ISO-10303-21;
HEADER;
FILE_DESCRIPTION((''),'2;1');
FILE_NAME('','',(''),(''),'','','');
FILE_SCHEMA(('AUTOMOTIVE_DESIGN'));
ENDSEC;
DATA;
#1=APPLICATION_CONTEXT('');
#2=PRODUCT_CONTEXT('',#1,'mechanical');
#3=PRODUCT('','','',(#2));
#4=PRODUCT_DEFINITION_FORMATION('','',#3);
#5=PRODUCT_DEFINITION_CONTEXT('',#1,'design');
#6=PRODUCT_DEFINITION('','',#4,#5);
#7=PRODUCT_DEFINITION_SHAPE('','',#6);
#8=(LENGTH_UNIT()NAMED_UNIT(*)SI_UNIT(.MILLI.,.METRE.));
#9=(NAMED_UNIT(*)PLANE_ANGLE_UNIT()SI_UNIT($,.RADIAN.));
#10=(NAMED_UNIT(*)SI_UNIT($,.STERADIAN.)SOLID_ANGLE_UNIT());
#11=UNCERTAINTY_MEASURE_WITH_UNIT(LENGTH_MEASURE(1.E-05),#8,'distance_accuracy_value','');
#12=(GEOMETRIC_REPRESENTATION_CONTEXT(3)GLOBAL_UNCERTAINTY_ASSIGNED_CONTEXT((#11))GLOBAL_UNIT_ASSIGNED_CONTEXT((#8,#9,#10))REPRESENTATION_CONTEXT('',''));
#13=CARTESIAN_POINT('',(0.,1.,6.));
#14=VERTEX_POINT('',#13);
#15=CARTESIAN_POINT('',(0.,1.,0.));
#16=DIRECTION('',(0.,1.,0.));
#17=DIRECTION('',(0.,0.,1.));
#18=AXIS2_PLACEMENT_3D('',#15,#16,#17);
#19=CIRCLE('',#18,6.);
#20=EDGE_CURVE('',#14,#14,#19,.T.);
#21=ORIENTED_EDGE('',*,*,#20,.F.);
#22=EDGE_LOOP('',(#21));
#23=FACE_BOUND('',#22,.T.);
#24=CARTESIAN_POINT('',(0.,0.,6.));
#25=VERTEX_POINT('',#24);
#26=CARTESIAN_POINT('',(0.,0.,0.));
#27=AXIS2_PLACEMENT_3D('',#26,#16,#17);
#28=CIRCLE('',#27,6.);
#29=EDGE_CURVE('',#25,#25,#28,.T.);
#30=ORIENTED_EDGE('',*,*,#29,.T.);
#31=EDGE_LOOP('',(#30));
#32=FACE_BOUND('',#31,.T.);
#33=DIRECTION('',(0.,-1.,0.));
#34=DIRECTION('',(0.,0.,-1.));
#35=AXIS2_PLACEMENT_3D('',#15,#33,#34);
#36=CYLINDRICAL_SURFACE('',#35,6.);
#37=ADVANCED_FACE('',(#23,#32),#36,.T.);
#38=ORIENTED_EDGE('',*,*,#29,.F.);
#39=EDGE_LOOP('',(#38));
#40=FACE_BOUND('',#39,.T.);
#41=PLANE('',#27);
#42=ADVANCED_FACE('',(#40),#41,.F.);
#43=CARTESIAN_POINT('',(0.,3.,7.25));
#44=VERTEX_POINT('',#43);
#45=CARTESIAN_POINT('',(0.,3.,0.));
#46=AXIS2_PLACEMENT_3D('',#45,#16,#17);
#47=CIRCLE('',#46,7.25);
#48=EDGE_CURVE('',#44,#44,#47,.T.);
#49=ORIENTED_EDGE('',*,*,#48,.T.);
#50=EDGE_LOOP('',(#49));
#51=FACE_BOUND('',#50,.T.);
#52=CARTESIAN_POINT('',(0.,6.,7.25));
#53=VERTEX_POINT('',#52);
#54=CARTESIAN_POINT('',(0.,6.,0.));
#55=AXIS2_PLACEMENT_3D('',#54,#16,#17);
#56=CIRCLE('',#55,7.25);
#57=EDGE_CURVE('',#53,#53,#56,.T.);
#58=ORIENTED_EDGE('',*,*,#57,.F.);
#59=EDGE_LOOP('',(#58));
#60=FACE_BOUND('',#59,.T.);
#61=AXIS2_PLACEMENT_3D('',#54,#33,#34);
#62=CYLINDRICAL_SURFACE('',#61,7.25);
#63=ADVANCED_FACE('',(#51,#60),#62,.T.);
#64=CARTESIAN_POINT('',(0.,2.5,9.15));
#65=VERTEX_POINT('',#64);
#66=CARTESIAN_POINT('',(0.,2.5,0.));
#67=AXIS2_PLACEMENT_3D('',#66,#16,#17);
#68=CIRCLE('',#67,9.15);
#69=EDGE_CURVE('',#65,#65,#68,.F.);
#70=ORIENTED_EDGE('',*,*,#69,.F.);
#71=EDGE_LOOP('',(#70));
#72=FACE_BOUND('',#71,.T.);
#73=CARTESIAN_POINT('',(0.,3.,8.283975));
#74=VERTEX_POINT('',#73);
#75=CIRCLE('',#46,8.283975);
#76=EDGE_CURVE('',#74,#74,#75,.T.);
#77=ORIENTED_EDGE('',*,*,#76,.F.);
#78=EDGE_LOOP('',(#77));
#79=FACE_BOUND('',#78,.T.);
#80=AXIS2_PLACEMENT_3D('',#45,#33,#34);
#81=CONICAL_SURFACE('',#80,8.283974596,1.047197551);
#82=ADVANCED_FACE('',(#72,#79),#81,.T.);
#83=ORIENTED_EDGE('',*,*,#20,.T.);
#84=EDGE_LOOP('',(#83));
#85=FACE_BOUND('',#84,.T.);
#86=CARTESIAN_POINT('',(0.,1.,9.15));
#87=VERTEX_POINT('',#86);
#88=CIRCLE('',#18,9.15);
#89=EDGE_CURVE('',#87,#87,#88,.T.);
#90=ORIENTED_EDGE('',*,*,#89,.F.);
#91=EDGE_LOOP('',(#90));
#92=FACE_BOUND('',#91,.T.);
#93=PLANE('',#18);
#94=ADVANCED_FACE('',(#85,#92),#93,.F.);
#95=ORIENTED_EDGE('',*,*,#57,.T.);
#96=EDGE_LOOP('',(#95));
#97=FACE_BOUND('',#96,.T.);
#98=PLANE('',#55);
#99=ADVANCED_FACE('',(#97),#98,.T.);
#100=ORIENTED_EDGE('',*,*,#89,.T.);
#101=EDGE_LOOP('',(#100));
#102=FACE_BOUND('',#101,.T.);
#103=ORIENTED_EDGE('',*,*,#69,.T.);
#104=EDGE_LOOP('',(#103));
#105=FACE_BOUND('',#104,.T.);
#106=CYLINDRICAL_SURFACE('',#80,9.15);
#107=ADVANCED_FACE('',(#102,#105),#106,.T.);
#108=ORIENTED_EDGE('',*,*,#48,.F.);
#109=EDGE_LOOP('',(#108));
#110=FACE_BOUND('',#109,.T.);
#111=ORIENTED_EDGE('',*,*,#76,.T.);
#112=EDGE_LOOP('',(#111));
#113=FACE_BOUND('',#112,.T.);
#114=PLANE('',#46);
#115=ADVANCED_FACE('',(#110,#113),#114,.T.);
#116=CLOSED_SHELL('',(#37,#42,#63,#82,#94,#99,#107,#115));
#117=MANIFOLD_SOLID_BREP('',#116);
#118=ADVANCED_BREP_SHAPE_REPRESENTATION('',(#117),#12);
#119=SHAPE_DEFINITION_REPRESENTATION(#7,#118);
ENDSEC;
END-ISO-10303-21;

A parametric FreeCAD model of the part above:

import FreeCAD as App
import Part
import Sketcher

V = App.Vector
Q = App.Units.Quantity


def edges_at(feature, points):
    """Names of the edges that pass closest to the given points."""
    edges = feature.Shape.Edges
    near = lambda p: min(range(len(edges)), key=lambda i: edges[i].distToShape(Part.Vertex(*p))[0])
    return sorted({f"Edge{near(p) + 1}" for p in points})

doc = App.newDocument("Part")
body = doc.addObject("PartDesign::Body", "Body")

# Sketch on XZ plane
sketch1 = doc.addObject("Sketcher::SketchObject", "Sketch")
body.addObject(sketch1)
sketch1.AttachmentSupport = (doc.XZ_Plane, [""])
sketch1.MapMode = "FlatFace"
sketch1.addGeometry(Part.Circle(V(0, 0, 0), V(0, 0, 1), 6), False)
sketch1.addConstraint([
    Sketcher.Constraint("Coincident", 0, 3, -1, 1),
    Sketcher.Constraint("Diameter", 0, Q("12 mm")),
])
pad1 = doc.addObject("PartDesign::Pad", "Pad")
body.addObject(pad1)
pad1.Profile = sketch1
pad1.Length = 1
pad1.Reversed = True

# Sketch on XZ plane
sketch2 = doc.addObject("Sketcher::SketchObject", "Sketch001")
body.addObject(sketch2)
sketch2.AttachmentSupport = (doc.XZ_Plane, [""])
sketch2.MapMode = "FlatFace"
sketch2.AttachmentOffset = App.Placement(V(0, 0, -1), App.Rotation())
sketch2.addGeometry(Part.Circle(V(0, 0, 0), V(0, 0, 1), 9), False)
sketch2.addConstraint([
    Sketcher.Constraint("Coincident", 0, 3, -1, 1),
    Sketcher.Constraint("Diameter", 0, Q("18.3 mm")),
])
pad2 = doc.addObject("PartDesign::Pad", "Pad001")
body.addObject(pad2)
pad2.Profile = sketch2
pad2.Length = 2
pad2.Reversed = True
doc.recompute()

chamfer = doc.addObject("PartDesign::Chamfer", "Chamfer")
body.addObject(chamfer)
chamfer.Base = (pad2, edges_at(pad2, [(0, 3, -9.15)]))
chamfer.ChamferType = "Two distances"
chamfer.Size = 0.5
chamfer.Size2 = 0.866025

# Sketch on XZ plane
sketch3 = doc.addObject("Sketcher::SketchObject", "Sketch002")
body.addObject(sketch3)
sketch3.AttachmentSupport = (doc.XZ_Plane, [""])
sketch3.MapMode = "FlatFace"
sketch3.AttachmentOffset = App.Placement(V(0, 0, -3), App.Rotation())
sketch3.addGeometry(Part.Circle(V(0, 0, 0), V(0, 0, 1), 7), False)
sketch3.addConstraint([
    Sketcher.Constraint("Coincident", 0, 3, -1, 1),
    Sketcher.Constraint("Diameter", 0, Q("14.5 mm")),
])
pad3 = doc.addObject("PartDesign::Pad", "Pad002")
body.addObject(pad3)
pad3.Profile = sketch3
pad3.Length = 3
pad3.Reversed = True

doc.recompute()
